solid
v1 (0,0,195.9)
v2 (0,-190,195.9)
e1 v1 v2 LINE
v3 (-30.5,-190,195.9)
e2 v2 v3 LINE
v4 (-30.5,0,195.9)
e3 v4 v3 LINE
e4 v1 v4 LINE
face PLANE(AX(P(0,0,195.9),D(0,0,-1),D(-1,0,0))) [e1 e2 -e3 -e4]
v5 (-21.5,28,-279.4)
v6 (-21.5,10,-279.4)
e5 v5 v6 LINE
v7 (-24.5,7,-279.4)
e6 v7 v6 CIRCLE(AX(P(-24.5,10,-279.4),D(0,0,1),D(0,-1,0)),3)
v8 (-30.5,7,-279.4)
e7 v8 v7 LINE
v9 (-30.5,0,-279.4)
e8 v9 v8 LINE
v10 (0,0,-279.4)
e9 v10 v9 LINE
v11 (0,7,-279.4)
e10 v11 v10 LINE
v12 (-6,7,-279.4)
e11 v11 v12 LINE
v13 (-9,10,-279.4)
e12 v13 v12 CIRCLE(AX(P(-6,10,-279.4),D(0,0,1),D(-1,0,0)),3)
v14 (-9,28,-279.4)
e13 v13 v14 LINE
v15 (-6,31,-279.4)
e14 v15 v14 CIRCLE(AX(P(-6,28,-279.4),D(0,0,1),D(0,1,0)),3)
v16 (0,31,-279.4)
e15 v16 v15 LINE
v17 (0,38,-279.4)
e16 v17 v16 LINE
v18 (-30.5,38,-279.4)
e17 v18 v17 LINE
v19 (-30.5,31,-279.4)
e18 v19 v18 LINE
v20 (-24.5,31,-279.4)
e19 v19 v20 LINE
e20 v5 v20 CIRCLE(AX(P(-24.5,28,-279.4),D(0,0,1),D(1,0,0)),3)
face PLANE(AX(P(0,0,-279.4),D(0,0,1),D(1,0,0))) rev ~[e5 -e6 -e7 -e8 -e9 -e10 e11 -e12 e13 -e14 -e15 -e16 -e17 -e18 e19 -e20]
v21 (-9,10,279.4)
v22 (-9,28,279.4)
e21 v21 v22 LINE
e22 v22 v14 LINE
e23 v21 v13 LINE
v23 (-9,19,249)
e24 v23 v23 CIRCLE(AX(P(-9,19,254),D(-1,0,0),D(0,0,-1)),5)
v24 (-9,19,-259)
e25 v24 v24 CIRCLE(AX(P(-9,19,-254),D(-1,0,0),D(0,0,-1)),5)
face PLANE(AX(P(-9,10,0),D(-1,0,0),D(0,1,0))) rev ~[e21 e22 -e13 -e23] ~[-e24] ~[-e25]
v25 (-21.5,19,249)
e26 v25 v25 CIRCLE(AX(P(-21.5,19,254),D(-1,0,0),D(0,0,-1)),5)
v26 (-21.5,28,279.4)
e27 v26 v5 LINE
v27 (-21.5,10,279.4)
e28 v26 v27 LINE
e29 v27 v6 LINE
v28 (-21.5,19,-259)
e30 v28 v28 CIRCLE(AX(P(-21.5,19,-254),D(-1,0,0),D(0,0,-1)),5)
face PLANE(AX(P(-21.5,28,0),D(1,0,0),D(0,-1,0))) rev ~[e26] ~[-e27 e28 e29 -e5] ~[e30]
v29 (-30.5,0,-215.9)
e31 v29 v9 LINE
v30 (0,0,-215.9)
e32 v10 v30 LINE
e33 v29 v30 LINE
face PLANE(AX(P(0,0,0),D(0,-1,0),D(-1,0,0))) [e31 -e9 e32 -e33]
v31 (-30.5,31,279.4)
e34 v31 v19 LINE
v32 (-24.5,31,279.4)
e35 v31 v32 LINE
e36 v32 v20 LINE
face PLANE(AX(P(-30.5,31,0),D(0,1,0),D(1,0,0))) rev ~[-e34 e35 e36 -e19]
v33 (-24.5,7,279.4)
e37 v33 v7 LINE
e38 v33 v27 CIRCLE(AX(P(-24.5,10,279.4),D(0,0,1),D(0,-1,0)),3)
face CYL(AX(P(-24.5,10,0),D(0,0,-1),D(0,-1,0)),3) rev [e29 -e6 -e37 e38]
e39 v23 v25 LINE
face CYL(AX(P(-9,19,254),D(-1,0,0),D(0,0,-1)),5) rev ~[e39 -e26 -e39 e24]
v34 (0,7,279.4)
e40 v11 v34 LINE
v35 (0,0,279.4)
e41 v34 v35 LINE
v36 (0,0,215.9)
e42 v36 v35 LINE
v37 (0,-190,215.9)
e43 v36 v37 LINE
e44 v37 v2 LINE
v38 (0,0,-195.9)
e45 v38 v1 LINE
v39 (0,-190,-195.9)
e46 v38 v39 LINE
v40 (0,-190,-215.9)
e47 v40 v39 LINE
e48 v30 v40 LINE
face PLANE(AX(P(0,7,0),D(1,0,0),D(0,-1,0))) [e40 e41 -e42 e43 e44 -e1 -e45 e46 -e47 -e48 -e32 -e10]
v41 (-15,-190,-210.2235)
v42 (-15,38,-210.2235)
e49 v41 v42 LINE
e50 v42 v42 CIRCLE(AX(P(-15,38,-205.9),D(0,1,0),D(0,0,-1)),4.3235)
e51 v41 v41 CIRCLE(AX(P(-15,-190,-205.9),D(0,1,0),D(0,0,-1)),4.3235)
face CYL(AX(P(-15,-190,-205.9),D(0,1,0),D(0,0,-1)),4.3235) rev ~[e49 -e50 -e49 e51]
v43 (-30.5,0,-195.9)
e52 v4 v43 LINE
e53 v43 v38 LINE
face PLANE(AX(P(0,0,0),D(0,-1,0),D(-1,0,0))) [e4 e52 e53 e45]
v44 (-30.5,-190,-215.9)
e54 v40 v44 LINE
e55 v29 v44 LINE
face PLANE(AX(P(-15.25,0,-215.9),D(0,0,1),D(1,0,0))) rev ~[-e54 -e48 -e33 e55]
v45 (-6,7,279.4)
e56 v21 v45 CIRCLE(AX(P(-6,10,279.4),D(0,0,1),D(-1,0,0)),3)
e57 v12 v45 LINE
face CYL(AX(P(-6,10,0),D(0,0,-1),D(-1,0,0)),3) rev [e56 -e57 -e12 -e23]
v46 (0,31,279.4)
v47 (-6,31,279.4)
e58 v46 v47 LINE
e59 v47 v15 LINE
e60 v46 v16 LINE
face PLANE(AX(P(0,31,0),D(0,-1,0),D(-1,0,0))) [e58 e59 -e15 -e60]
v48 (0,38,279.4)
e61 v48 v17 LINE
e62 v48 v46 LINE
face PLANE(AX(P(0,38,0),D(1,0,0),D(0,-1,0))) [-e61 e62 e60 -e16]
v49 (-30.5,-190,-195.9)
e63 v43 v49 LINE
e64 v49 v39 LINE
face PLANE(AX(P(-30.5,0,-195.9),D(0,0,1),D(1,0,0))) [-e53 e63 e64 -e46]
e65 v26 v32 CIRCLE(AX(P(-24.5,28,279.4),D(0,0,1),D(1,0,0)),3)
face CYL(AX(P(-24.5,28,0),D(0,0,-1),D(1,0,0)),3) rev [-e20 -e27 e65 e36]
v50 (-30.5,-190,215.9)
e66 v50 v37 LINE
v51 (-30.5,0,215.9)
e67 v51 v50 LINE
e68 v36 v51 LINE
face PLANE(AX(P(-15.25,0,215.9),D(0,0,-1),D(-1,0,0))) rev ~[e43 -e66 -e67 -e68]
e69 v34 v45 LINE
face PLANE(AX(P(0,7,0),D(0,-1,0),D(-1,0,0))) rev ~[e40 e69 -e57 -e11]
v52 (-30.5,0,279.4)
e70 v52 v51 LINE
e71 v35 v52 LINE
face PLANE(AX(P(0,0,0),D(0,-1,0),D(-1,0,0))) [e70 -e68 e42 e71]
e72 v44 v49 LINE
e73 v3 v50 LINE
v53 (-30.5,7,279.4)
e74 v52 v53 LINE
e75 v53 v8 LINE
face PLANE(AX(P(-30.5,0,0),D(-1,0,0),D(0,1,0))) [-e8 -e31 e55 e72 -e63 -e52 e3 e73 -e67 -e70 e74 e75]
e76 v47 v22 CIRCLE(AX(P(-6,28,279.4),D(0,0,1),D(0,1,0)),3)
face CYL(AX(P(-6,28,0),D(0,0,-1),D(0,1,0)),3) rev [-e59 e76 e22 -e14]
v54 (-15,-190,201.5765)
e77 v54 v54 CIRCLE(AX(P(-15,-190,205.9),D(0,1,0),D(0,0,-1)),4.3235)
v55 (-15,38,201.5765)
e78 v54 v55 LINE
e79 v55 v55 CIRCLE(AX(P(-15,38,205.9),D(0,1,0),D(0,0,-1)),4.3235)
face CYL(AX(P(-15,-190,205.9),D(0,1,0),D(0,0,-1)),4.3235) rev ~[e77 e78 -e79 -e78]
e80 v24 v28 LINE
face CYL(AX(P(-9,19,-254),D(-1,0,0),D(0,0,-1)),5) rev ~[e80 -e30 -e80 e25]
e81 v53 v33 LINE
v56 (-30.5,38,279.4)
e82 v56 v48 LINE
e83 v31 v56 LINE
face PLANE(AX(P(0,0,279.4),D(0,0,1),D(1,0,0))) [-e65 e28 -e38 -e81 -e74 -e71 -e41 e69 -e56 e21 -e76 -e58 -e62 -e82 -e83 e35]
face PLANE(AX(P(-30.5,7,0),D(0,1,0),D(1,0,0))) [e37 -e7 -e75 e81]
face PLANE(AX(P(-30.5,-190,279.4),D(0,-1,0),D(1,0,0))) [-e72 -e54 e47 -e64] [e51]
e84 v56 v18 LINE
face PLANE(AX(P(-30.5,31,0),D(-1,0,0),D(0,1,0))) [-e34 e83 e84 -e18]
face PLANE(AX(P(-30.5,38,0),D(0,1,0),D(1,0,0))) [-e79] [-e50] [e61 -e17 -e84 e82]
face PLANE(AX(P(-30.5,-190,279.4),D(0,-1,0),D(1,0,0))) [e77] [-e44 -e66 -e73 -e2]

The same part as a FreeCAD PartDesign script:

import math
import FreeCAD as App
import Part
import Sketcher

V = App.Vector
Q = App.Units.Quantity

doc = App.newDocument("Part")
body = doc.addObject("PartDesign::Body", "Body")

# Sketch on XY plane
sketch1 = body.newObject("Sketcher::SketchObject", "Sketch")
sketch1.AttachmentSupport = (doc.getObject("XY_Plane"), [""])
sketch1.MapMode = "FlatFace"
sketch1.addGeometry(Part.LineSegment(V(-30.5, 0, 0), V(0, 0, 0)), False)
sketch1.addGeometry(Part.LineSegment(V(0, 0, 0), V(0, 7, 0)), False)
sketch1.addGeometry(Part.LineSegment(V(0, 7, 0), V(-6, 7, 0)), False)
sketch1.addGeometry(Part.ArcOfCircle(Part.Circle(V(-6, 10, 0), V(0, 0, 1), 3), math.radians(180), math.radians(270)), False)
sketch1.addGeometry(Part.LineSegment(V(-9, 10, 0), V(-9, 28, 0)), False)
sketch1.addGeometry(Part.ArcOfCircle(Part.Circle(V(-6, 28, 0), V(0, 0, 1), 3), math.radians(90), math.radians(180)), False)
sketch1.addGeometry(Part.LineSegment(V(-6, 31, 0), V(0, 31, 0)), False)
sketch1.addGeometry(Part.LineSegment(V(0, 31, 0), V(0, 38, 0)), False)
sketch1.addGeometry(Part.LineSegment(V(0, 38, 0), V(-30.5, 38, 0)), False)
sketch1.addGeometry(Part.LineSegment(V(-30.5, 38, 0), V(-30.5, 31, 0)), False)
sketch1.addGeometry(Part.LineSegment(V(-30.5, 31, 0), V(-24.5, 31, 0)), False)
sketch1.addGeometry(Part.ArcOfCircle(Part.Circle(V(-24.5, 28, 0), V(0, 0, 1), 3), math.radians(0), math.radians(90)), False)
sketch1.addGeometry(Part.LineSegment(V(-21.5, 28, 0), V(-21.5, 10, 0)), False)
sketch1.addGeometry(Part.ArcOfCircle(Part.Circle(V(-24.5, 10, 0), V(0, 0, 1), 3), math.radians(-90), math.radians(0)), False)
sketch1.addGeometry(Part.LineSegment(V(-24.5, 7, 0), V(-30.5, 7, 0)), False)
sketch1.addGeometry(Part.LineSegment(V(-30.5, 7, 0), V(-30.5, 0, 0)), False)
sketch1.addConstraint(Sketcher.Constraint("Coincident", 0, 2, 1, 1))
sketch1.addConstraint(Sketcher.Constraint("Coincident", 1, 2, 2, 1))
sketch1.addConstraint(Sketcher.Constraint("Tangent", 2, 2, 3, 2))
sketch1.addConstraint(Sketcher.Constraint("Tangent", 3, 1, 4, 1))
sketch1.addConstraint(Sketcher.Constraint("Tangent", 4, 2, 5, 2))
sketch1.addConstraint(Sketcher.Constraint("Tangent", 5, 1, 6, 1))
sketch1.addConstraint(Sketcher.Constraint("Coincident", 6, 2, 7, 1))
sketch1.addConstraint(Sketcher.Constraint("Coincident", 7, 2, 8, 1))
sketch1.addConstraint(Sketcher.Constraint("Coincident", 8, 2, 9, 1))
sketch1.addConstraint(Sketcher.Constraint("Coincident", 9, 2, 10, 1))
sketch1.addConstraint(Sketcher.Constraint("Tangent", 10, 2, 11, 2))
sketch1.addConstraint(Sketcher.Constraint("Tangent", 11, 1, 12, 1))
sketch1.addConstraint(Sketcher.Constraint("Tangent", 12, 2, 13, 2))
sketch1.addConstraint(Sketcher.Constraint("Tangent", 13, 1, 14, 1))
sketch1.addConstraint(Sketcher.Constraint("Coincident", 14, 2, 15, 1))
sketch1.addConstraint(Sketcher.Constraint("Coincident", 15, 2, 0, 1))
sketch1.addConstraint(Sketcher.Constraint("Horizontal", 0))
sketch1.addConstraint(Sketcher.Constraint("Vertical", 1))
sketch1.addConstraint(Sketcher.Constraint("Horizontal", 2))
sketch1.addConstraint(Sketcher.Constraint("Vertical", 4))
sketch1.addConstraint(Sketcher.Constraint("Horizontal", 6))
sketch1.addConstraint(Sketcher.Constraint("Vertical", 7))
sketch1.addConstraint(Sketcher.Constraint("Horizontal", 8))
sketch1.addConstraint(Sketcher.Constraint("Vertical", 9))
sketch1.addConstraint(Sketcher.Constraint("Horizontal", 10))
sketch1.addConstraint(Sketcher.Constraint("Vertical", 12))
sketch1.addConstraint(Sketcher.Constraint("Horizontal", 14))
sketch1.addConstraint(Sketcher.Constraint("Vertical", 15))
sketch1.addConstraint(Sketcher.Constraint("Coincident", 0, 2, -1, 1))
sketch1.addConstraint(Sketcher.Constraint("Equal", 3, 5))
sketch1.addConstraint(Sketcher.Constraint("Equal", 5, 11))
sketch1.addConstraint(Sketcher.Constraint("Equal", 11, 13))
sketch1.addConstraint(Sketcher.Constraint("PointOnObject", 6, 2, -2))
sketch1.addConstraint(Sketcher.Constraint("Horizontal", 5, 3, 11, 3))
sketch1.addConstraint(Sketcher.Constraint("Horizontal", 3, 3, 13, 3))
sketch1.addConstraint(Sketcher.Constraint("Vertical", 9, 2, 14, 2))
sketch1.addConstraint(Sketcher.Constraint("Equal", 6, 10))
sketch1.addConstraint(Sketcher.Constraint("Equal", 1, 7))
sketch1.addConstraint(Sketcher.Constraint("Radius", 3, Q("3 mm")))
sketch1.addConstraint(Sketcher.Constraint("DistanceY", 1, 1, 1, 2, Q("7 mm")))
sketch1.addConstraint(Sketcher.Constraint("DistanceX", 0, 1, 0, 2, Q("30.5 mm")))
sketch1.addConstraint(Sketcher.Constraint("DistanceX", 3, 1, -1, 1, Q("9 mm")))
sketch1.addConstraint(Sketcher.Constraint("DistanceY", -1, 1, 7, 2, Q("38 mm")))
pad1 = body.newObject("PartDesign::Pad", "Pad")
pad1.Profile = sketch1
pad1.Length = 558.8
pad1.Midplane = True

# Sketch on YZ plane
sketch2 = body.newObject("Sketcher::SketchObject", "Sketch001")
sketch2.AttachmentSupport = (doc.getObject("YZ_Plane"), [""])
sketch2.MapMode = "FlatFace"
sketch2.AttachmentOffset = App.Placement(V(0, 0, -9), App.Rotation())
sketch2.addGeometry(Part.Circle(V(19, 254, 0), V(0, 0, 1), 5), False)
sketch2.addConstraint(Sketcher.Constraint("Diameter", 0, Q("10 mm")))
sketch2.addConstraint(Sketcher.Constraint("DistanceX", -1, 1, 0, 3, Q("19 mm")))
sketch2.addConstraint(Sketcher.Constraint("DistanceY", -1, 1, 0, 3, Q("254 mm")))
doc.recompute()
hole = body.newObject("PartDesign::Hole", "Hole")
hole.Profile = sketch2
hole.ThreadType = "None"
hole.Diameter = 10
hole.DepthType = "Dimension"
hole.Depth = 25
hole.DrillPoint = "Flat"

# Sketch on YZ plane
sketch3 = body.newObject("Sketcher::SketchObject", "Sketch002")
sketch3.AttachmentSupport = (doc.getObject("YZ_Plane"), [""])
sketch3.MapMode = "FlatFace"
sketch3.AttachmentOffset = App.Placement(V(0, 0, -9), App.Rotation())
sketch3.addGeometry(Part.Circle(V(19, -254, 0), V(0, 0, 1), 5), False)
sketch3.addConstraint(Sketcher.Constraint("Diameter", 0, Q("10 mm")))
sketch3.addConstraint(Sketcher.Constraint("DistanceX", -1, 1, 0, 3, Q("19 mm")))
sketch3.addConstraint(Sketcher.Constraint("DistanceY", 0, 3, -1, 1, Q("254 mm")))
doc.recompute()
hole2 = body.newObject("PartDesign::Hole", "Hole001")
hole2.Profile = sketch3
hole2.ThreadType = "None"
hole2.Diameter = 10
hole2.DepthType = "Dimension"
hole2.Depth = 25
hole2.DrillPoint = "Angled"
hole2.DrillPointAngle = 118

# Sketch on XZ plane
sketch4 = body.newObject("Sketcher::SketchObject", "Sketch003")
sketch4.AttachmentSupport = (doc.getObject("XZ_Plane"), [""])
sketch4.MapMode = "FlatFace"
sketch4.addGeometry(Part.LineSegment(V(0, 216, 0), V(-30, 216, 0)), False)
sketch4.addGeometry(Part.LineSegment(V(-30, 216, 0), V(-30, 196, 0)), False)
sketch4.addGeometry(Part.LineSegment(V(-30, 196, 0), V(0, 196, 0)), False)
sketch4.addGeometry(Part.LineSegment(V(0, 196, 0), V(0, 216, 0)), False)
sketch4.addGeometry(Part.LineSegment(V(0, -196, 0), V(-30, -196, 0)), False)
sketch4.addGeometry(Part.LineSegment(V(-30, -196, 0), V(-30, -216, 0)), False)
sketch4.addGeometry(Part.LineSegment(V(-30, -216, 0), V(0, -216, 0)), False)
sketch4.addGeometry(Part.LineSegment(V(0, -216, 0), V(0, -196, 0)), False)
sketch4.addConstraint(Sketcher.Constraint("Coincident", 0, 2, 1, 1))
sketch4.addConstraint(Sketcher.Constraint("Coincident", 1, 2, 2, 1))
sketch4.addConstraint(Sketcher.Constraint("Coincident", 2, 2, 3, 1))
sketch4.addConstraint(Sketcher.Constraint("Coincident", 3, 2, 0, 1))
sketch4.addConstraint(Sketcher.Constraint("Coincident", 4, 2, 5, 1))
sketch4.addConstraint(Sketcher.Constraint("Coincident", 5, 2, 6, 1))
sketch4.addConstraint(Sketcher.Constraint("Coincident", 6, 2, 7, 1))
sketch4.addConstraint(Sketcher.Constraint("Coincident", 7, 2, 4, 1))
sketch4.addConstraint(Sketcher.Constraint("Horizontal", 0))
sketch4.addConstraint(Sketcher.Constraint("Vertical", 1))
sketch4.addConstraint(Sketcher.Constraint("Horizontal", 2))
sketch4.addConstraint(Sketcher.Constraint("Vertical", 3))
sketch4.addConstraint(Sketcher.Constraint("Horizontal", 4))
sketch4.addConstraint(Sketcher.Constraint("Vertical", 5))
sketch4.addConstraint(Sketcher.Constraint("Horizontal", 6))
sketch4.addConstraint(Sketcher.Constraint("Vertical", 7))
sketch4.addConstraint(Sketcher.Constraint("Symmetric", 3, 2, 6, 2, -1, 1))
sketch4.addConstraint(Sketcher.Constraint("Symmetric", 1, 2, 4, 2, -1))
sketch4.addConstraint(Sketcher.Constraint("PointOnObject", 2, 2, -2))
sketch4.addConstraint(Sketcher.Constraint("DistanceY", 1, 2, 1, 1, Q("20 mm")))
sketch4.addConstraint(Sketcher.Constraint("DistanceX", 0, 2, 0, 1, Q("30.5 mm")))
sketch4.addConstraint(Sketcher.Constraint("DistanceY", -1, 1, 0, 2, Q("215.9 mm")))
pad2 = body.newObject("PartDesign::Pad", "Pad001")
pad2.Profile = sketch4
pad2.Length = 190

# Sketch on XZ plane
sketch5 = body.newObject("Sketcher::SketchObject", "Sketch004")
sketch5.AttachmentSupport = (doc.getObject("XZ_Plane"), [""])
sketch5.MapMode = "FlatFace"
sketch5.AttachmentOffset = App.Placement(V(0, 0, 190), App.Rotation())
sketch5.addGeometry(Part.Circle(V(-15, -205.9, 0), V(0, 0, 1), 4.3), False)
sketch5.addConstraint(Sketcher.Constraint("Diameter", 0, Q("8.647 mm")))
sketch5.addConstraint(Sketcher.Constraint("DistanceX", 0, 3, -1, 1, Q("15 mm")))
sketch5.addConstraint(Sketcher.Constraint("DistanceY", 0, 3, -1, 1, Q("205.9 mm")))
doc.recompute()
hole3 = body.newObject("PartDesign::Hole", "Hole002")
hole3.Profile = sketch5
hole3.ThreadType = "None"
hole3.Diameter = 8.647
hole3.DepthType = "ThroughAll"

# Sketch on XZ plane
sketch6 = body.newObject("Sketcher::SketchObject", "Sketch005")
sketch6.AttachmentSupport = (doc.getObject("XZ_Plane"), [""])
sketch6.MapMode = "FlatFace"
sketch6.AttachmentOffset = App.Placement(V(0, 0, 190), App.Rotation())
sketch6.addGeometry(Part.Circle(V(-15, 205.9, 0), V(0, 0, 1), 4.3), False)
sketch6.addConstraint(Sketcher.Constraint("Diameter", 0, Q("8.647 mm")))
sketch6.addConstraint(Sketcher.Constraint("DistanceX", 0, 3, -1, 1, Q("15 mm")))
sketch6.addConstraint(Sketcher.Constraint("DistanceY", -1, 1, 0, 3, Q("205.9 mm")))
doc.recompute()
hole4 = body.newObject("PartDesign::Hole", "Hole003")
hole4.Profile = sketch6
hole4.ThreadType = "None"
hole4.Diameter = 8.647
hole4.DepthType = "ThroughAll"

doc.recompute()
